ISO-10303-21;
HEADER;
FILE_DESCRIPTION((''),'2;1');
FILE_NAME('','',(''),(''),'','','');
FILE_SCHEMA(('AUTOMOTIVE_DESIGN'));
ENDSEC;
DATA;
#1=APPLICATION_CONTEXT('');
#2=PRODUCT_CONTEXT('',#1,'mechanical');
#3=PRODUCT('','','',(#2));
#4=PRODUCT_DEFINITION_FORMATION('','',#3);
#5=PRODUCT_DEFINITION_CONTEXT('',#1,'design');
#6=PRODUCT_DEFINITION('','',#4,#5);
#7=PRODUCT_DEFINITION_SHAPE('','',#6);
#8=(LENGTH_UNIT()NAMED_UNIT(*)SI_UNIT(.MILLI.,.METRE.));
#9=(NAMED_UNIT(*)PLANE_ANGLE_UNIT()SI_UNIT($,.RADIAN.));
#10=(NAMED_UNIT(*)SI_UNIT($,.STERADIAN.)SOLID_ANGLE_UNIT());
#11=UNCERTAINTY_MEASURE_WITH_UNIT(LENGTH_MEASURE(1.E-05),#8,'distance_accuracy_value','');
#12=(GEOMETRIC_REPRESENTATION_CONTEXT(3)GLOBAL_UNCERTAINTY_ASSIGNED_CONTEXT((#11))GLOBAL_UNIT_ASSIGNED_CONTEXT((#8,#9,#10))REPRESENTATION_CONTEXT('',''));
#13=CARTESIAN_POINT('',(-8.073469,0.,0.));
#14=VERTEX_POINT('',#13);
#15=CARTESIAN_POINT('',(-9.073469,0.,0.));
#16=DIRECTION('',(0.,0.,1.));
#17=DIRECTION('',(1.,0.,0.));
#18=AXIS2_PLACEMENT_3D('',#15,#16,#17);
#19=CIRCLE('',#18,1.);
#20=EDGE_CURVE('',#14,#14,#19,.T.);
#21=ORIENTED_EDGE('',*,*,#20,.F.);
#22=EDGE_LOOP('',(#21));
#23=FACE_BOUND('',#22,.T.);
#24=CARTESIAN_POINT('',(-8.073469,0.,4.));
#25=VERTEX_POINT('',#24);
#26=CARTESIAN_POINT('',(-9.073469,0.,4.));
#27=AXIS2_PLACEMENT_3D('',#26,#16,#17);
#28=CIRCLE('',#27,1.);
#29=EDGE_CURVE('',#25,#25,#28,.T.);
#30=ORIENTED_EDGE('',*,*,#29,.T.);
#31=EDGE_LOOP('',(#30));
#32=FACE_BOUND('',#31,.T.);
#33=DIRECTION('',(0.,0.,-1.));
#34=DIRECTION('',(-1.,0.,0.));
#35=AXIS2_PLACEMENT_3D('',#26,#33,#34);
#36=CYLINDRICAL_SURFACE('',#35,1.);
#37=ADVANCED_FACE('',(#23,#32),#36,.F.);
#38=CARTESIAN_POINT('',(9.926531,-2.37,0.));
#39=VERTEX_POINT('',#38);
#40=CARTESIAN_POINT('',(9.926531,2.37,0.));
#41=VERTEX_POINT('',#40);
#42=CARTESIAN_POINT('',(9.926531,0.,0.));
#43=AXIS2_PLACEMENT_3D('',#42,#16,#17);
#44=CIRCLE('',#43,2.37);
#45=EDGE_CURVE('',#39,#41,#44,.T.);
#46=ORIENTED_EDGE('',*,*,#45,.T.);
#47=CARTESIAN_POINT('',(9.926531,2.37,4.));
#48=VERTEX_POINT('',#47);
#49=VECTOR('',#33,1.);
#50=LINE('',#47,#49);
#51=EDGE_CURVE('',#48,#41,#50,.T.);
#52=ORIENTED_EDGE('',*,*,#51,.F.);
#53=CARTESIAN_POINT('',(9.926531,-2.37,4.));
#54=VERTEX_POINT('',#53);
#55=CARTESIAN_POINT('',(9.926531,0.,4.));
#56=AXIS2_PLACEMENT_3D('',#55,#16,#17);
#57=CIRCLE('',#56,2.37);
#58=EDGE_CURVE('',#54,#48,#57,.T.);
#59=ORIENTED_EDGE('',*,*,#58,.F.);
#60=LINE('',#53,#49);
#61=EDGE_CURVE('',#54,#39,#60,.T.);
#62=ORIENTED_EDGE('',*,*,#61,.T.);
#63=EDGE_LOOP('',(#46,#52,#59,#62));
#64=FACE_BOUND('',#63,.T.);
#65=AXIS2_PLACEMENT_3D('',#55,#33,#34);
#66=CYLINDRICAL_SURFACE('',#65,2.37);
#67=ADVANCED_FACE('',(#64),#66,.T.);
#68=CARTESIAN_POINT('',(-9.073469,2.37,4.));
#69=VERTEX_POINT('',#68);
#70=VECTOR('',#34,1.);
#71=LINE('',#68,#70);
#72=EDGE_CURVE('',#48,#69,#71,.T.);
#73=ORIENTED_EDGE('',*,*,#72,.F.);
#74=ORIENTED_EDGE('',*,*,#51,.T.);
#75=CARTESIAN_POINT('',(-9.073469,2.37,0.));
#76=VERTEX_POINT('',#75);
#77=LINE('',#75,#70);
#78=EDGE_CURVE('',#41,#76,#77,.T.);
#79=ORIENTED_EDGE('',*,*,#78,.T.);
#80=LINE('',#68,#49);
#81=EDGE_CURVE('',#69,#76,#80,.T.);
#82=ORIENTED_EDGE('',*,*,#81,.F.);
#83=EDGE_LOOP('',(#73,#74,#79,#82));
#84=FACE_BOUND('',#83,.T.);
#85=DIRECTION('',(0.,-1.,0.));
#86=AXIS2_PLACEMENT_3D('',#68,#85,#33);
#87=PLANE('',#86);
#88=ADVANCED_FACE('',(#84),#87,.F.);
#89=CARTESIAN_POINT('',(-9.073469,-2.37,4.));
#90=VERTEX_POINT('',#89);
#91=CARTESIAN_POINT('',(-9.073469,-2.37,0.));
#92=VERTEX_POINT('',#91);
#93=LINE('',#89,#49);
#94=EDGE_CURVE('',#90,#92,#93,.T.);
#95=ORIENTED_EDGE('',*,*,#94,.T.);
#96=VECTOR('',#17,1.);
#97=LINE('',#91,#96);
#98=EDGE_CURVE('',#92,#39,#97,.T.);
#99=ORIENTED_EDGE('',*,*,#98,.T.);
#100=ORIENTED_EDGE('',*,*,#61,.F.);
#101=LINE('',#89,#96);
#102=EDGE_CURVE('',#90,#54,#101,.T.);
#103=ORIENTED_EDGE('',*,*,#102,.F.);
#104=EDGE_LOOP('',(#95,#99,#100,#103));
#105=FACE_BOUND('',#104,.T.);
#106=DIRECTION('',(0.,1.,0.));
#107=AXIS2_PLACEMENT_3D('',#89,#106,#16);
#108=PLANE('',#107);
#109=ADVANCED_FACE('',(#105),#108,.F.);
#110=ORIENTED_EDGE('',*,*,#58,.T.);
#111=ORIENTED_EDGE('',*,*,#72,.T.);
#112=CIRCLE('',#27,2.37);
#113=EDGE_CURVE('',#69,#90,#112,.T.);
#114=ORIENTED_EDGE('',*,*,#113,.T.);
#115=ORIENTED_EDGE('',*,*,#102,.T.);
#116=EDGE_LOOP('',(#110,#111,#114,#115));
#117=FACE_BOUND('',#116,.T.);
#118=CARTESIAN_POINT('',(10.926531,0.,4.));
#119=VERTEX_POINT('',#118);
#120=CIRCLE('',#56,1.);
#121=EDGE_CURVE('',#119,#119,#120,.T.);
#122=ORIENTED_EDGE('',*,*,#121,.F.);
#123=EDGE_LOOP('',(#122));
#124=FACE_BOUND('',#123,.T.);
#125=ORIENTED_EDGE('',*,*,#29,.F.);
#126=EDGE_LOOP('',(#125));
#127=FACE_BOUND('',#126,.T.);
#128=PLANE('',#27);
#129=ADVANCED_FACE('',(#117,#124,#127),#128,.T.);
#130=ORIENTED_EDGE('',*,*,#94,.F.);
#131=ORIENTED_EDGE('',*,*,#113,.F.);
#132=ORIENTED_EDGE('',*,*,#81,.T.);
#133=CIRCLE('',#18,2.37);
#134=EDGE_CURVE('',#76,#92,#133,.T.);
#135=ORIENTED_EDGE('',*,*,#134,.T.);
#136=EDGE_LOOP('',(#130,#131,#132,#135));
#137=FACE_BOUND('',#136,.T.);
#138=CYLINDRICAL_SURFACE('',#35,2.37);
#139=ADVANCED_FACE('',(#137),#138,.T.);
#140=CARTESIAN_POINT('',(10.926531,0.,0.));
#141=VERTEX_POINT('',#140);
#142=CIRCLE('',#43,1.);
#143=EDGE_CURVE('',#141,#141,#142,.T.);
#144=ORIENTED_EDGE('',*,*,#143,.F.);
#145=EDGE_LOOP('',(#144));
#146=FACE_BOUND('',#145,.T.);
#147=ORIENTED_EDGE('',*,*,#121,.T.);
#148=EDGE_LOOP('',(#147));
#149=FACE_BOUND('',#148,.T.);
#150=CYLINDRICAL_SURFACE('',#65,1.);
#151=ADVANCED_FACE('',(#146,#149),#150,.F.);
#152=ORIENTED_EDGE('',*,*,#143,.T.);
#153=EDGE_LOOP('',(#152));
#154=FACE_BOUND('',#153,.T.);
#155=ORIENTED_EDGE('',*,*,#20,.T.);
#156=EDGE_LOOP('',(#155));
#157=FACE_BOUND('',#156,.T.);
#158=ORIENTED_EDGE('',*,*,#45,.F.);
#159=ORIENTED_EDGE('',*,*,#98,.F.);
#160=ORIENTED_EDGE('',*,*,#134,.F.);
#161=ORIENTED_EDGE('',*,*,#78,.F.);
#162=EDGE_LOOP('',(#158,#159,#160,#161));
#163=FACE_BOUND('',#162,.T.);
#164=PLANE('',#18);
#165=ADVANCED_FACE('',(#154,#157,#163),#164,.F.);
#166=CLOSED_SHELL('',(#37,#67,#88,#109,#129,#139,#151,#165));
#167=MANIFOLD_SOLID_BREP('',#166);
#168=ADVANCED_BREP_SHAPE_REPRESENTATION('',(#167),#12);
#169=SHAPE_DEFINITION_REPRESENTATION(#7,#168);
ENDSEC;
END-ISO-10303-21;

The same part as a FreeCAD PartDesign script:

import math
import FreeCAD as App
import Part
import Sketcher
Q = App.Units.Quantity

doc = App.newDocument("Part")
body = doc.addObject("PartDesign::Body", "Body")

sketch1 = body.newObject("Sketcher::SketchObject", "Sketch")
sketch1.AttachmentSupport = (doc.getObject("XY_Plane"), [""])
sketch1.MapMode = "FlatFace"
sketch1.addGeometry(Part.LineSegment(App.Vector(9.926531, 2.37, 0), App.Vector(-9.073469, 2.37, 0)), False)
sketch1.addGeometry(Part.ArcOfCircle(Part.Circle(App.Vector(-9.073469, 0, 0), App.Vector(0, 0, 1), 2.37), math.radians(90), math.radians(270)), False)
sketch1.addGeometry(Part.LineSegment(App.Vector(-9.073469, -2.37, 0), App.Vector(9.926531, -2.37, 0)), False)
sketch1.addGeometry(Part.ArcOfCircle(Part.Circle(App.Vector(9.926531, 0, 0), App.Vector(0, 0, 1), 2.37), math.radians(-90), math.radians(90)), False)
sketch1.addGeometry(Part.Circle(App.Vector(9.926531, 0, 0), App.Vector(0, 0, 1), 1), False)
sketch1.addGeometry(Part.Circle(App.Vector(-9.073469, 0, 0), App.Vector(0, 0, 1), 1), False)
sketch1.addConstraint(Sketcher.Constraint("Tangent", 0, 2, 1, 1))
sketch1.addConstraint(Sketcher.Constraint("Tangent", 1, 2, 2, 1))
sketch1.addConstraint(Sketcher.Constraint("Tangent", 2, 2, 3, 1))
sketch1.addConstraint(Sketcher.Constraint("Tangent", 3, 2, 0, 1))
sketch1.addConstraint(Sketcher.Constraint("Horizontal", 0))
sketch1.addConstraint(Sketcher.Constraint("Horizontal", 2))
sketch1.addConstraint(Sketcher.Constraint("Coincident", 4, 3, 3, 3))
sketch1.addConstraint(Sketcher.Constraint("Coincident", 5, 3, 1, 3))
sketch1.addConstraint(Sketcher.Constraint("Equal", 4, 5))
sketch1.addConstraint(Sketcher.Constraint("PointOnObject", 1, 3, -1))
sketch1.addConstraint(Sketcher.Constraint("Diameter", 4, Q("2 mm")))
sketch1.addConstraint(Sketcher.Constraint("DistanceX", 0, 2, 0, 1, Q("19 mm")))
sketch1.addConstraint(Sketcher.Constraint("Radius", 1, Q("2.37 mm")))
sketch1.addConstraint(Sketcher.Constraint("DistanceX", 1, 3, -1, 1, Q("9.073469 mm")))
pad1 = body.newObject("PartDesign::Pad", "Pad")
pad1.Profile = sketch1
pad1.Length = 4

doc.recompute()
